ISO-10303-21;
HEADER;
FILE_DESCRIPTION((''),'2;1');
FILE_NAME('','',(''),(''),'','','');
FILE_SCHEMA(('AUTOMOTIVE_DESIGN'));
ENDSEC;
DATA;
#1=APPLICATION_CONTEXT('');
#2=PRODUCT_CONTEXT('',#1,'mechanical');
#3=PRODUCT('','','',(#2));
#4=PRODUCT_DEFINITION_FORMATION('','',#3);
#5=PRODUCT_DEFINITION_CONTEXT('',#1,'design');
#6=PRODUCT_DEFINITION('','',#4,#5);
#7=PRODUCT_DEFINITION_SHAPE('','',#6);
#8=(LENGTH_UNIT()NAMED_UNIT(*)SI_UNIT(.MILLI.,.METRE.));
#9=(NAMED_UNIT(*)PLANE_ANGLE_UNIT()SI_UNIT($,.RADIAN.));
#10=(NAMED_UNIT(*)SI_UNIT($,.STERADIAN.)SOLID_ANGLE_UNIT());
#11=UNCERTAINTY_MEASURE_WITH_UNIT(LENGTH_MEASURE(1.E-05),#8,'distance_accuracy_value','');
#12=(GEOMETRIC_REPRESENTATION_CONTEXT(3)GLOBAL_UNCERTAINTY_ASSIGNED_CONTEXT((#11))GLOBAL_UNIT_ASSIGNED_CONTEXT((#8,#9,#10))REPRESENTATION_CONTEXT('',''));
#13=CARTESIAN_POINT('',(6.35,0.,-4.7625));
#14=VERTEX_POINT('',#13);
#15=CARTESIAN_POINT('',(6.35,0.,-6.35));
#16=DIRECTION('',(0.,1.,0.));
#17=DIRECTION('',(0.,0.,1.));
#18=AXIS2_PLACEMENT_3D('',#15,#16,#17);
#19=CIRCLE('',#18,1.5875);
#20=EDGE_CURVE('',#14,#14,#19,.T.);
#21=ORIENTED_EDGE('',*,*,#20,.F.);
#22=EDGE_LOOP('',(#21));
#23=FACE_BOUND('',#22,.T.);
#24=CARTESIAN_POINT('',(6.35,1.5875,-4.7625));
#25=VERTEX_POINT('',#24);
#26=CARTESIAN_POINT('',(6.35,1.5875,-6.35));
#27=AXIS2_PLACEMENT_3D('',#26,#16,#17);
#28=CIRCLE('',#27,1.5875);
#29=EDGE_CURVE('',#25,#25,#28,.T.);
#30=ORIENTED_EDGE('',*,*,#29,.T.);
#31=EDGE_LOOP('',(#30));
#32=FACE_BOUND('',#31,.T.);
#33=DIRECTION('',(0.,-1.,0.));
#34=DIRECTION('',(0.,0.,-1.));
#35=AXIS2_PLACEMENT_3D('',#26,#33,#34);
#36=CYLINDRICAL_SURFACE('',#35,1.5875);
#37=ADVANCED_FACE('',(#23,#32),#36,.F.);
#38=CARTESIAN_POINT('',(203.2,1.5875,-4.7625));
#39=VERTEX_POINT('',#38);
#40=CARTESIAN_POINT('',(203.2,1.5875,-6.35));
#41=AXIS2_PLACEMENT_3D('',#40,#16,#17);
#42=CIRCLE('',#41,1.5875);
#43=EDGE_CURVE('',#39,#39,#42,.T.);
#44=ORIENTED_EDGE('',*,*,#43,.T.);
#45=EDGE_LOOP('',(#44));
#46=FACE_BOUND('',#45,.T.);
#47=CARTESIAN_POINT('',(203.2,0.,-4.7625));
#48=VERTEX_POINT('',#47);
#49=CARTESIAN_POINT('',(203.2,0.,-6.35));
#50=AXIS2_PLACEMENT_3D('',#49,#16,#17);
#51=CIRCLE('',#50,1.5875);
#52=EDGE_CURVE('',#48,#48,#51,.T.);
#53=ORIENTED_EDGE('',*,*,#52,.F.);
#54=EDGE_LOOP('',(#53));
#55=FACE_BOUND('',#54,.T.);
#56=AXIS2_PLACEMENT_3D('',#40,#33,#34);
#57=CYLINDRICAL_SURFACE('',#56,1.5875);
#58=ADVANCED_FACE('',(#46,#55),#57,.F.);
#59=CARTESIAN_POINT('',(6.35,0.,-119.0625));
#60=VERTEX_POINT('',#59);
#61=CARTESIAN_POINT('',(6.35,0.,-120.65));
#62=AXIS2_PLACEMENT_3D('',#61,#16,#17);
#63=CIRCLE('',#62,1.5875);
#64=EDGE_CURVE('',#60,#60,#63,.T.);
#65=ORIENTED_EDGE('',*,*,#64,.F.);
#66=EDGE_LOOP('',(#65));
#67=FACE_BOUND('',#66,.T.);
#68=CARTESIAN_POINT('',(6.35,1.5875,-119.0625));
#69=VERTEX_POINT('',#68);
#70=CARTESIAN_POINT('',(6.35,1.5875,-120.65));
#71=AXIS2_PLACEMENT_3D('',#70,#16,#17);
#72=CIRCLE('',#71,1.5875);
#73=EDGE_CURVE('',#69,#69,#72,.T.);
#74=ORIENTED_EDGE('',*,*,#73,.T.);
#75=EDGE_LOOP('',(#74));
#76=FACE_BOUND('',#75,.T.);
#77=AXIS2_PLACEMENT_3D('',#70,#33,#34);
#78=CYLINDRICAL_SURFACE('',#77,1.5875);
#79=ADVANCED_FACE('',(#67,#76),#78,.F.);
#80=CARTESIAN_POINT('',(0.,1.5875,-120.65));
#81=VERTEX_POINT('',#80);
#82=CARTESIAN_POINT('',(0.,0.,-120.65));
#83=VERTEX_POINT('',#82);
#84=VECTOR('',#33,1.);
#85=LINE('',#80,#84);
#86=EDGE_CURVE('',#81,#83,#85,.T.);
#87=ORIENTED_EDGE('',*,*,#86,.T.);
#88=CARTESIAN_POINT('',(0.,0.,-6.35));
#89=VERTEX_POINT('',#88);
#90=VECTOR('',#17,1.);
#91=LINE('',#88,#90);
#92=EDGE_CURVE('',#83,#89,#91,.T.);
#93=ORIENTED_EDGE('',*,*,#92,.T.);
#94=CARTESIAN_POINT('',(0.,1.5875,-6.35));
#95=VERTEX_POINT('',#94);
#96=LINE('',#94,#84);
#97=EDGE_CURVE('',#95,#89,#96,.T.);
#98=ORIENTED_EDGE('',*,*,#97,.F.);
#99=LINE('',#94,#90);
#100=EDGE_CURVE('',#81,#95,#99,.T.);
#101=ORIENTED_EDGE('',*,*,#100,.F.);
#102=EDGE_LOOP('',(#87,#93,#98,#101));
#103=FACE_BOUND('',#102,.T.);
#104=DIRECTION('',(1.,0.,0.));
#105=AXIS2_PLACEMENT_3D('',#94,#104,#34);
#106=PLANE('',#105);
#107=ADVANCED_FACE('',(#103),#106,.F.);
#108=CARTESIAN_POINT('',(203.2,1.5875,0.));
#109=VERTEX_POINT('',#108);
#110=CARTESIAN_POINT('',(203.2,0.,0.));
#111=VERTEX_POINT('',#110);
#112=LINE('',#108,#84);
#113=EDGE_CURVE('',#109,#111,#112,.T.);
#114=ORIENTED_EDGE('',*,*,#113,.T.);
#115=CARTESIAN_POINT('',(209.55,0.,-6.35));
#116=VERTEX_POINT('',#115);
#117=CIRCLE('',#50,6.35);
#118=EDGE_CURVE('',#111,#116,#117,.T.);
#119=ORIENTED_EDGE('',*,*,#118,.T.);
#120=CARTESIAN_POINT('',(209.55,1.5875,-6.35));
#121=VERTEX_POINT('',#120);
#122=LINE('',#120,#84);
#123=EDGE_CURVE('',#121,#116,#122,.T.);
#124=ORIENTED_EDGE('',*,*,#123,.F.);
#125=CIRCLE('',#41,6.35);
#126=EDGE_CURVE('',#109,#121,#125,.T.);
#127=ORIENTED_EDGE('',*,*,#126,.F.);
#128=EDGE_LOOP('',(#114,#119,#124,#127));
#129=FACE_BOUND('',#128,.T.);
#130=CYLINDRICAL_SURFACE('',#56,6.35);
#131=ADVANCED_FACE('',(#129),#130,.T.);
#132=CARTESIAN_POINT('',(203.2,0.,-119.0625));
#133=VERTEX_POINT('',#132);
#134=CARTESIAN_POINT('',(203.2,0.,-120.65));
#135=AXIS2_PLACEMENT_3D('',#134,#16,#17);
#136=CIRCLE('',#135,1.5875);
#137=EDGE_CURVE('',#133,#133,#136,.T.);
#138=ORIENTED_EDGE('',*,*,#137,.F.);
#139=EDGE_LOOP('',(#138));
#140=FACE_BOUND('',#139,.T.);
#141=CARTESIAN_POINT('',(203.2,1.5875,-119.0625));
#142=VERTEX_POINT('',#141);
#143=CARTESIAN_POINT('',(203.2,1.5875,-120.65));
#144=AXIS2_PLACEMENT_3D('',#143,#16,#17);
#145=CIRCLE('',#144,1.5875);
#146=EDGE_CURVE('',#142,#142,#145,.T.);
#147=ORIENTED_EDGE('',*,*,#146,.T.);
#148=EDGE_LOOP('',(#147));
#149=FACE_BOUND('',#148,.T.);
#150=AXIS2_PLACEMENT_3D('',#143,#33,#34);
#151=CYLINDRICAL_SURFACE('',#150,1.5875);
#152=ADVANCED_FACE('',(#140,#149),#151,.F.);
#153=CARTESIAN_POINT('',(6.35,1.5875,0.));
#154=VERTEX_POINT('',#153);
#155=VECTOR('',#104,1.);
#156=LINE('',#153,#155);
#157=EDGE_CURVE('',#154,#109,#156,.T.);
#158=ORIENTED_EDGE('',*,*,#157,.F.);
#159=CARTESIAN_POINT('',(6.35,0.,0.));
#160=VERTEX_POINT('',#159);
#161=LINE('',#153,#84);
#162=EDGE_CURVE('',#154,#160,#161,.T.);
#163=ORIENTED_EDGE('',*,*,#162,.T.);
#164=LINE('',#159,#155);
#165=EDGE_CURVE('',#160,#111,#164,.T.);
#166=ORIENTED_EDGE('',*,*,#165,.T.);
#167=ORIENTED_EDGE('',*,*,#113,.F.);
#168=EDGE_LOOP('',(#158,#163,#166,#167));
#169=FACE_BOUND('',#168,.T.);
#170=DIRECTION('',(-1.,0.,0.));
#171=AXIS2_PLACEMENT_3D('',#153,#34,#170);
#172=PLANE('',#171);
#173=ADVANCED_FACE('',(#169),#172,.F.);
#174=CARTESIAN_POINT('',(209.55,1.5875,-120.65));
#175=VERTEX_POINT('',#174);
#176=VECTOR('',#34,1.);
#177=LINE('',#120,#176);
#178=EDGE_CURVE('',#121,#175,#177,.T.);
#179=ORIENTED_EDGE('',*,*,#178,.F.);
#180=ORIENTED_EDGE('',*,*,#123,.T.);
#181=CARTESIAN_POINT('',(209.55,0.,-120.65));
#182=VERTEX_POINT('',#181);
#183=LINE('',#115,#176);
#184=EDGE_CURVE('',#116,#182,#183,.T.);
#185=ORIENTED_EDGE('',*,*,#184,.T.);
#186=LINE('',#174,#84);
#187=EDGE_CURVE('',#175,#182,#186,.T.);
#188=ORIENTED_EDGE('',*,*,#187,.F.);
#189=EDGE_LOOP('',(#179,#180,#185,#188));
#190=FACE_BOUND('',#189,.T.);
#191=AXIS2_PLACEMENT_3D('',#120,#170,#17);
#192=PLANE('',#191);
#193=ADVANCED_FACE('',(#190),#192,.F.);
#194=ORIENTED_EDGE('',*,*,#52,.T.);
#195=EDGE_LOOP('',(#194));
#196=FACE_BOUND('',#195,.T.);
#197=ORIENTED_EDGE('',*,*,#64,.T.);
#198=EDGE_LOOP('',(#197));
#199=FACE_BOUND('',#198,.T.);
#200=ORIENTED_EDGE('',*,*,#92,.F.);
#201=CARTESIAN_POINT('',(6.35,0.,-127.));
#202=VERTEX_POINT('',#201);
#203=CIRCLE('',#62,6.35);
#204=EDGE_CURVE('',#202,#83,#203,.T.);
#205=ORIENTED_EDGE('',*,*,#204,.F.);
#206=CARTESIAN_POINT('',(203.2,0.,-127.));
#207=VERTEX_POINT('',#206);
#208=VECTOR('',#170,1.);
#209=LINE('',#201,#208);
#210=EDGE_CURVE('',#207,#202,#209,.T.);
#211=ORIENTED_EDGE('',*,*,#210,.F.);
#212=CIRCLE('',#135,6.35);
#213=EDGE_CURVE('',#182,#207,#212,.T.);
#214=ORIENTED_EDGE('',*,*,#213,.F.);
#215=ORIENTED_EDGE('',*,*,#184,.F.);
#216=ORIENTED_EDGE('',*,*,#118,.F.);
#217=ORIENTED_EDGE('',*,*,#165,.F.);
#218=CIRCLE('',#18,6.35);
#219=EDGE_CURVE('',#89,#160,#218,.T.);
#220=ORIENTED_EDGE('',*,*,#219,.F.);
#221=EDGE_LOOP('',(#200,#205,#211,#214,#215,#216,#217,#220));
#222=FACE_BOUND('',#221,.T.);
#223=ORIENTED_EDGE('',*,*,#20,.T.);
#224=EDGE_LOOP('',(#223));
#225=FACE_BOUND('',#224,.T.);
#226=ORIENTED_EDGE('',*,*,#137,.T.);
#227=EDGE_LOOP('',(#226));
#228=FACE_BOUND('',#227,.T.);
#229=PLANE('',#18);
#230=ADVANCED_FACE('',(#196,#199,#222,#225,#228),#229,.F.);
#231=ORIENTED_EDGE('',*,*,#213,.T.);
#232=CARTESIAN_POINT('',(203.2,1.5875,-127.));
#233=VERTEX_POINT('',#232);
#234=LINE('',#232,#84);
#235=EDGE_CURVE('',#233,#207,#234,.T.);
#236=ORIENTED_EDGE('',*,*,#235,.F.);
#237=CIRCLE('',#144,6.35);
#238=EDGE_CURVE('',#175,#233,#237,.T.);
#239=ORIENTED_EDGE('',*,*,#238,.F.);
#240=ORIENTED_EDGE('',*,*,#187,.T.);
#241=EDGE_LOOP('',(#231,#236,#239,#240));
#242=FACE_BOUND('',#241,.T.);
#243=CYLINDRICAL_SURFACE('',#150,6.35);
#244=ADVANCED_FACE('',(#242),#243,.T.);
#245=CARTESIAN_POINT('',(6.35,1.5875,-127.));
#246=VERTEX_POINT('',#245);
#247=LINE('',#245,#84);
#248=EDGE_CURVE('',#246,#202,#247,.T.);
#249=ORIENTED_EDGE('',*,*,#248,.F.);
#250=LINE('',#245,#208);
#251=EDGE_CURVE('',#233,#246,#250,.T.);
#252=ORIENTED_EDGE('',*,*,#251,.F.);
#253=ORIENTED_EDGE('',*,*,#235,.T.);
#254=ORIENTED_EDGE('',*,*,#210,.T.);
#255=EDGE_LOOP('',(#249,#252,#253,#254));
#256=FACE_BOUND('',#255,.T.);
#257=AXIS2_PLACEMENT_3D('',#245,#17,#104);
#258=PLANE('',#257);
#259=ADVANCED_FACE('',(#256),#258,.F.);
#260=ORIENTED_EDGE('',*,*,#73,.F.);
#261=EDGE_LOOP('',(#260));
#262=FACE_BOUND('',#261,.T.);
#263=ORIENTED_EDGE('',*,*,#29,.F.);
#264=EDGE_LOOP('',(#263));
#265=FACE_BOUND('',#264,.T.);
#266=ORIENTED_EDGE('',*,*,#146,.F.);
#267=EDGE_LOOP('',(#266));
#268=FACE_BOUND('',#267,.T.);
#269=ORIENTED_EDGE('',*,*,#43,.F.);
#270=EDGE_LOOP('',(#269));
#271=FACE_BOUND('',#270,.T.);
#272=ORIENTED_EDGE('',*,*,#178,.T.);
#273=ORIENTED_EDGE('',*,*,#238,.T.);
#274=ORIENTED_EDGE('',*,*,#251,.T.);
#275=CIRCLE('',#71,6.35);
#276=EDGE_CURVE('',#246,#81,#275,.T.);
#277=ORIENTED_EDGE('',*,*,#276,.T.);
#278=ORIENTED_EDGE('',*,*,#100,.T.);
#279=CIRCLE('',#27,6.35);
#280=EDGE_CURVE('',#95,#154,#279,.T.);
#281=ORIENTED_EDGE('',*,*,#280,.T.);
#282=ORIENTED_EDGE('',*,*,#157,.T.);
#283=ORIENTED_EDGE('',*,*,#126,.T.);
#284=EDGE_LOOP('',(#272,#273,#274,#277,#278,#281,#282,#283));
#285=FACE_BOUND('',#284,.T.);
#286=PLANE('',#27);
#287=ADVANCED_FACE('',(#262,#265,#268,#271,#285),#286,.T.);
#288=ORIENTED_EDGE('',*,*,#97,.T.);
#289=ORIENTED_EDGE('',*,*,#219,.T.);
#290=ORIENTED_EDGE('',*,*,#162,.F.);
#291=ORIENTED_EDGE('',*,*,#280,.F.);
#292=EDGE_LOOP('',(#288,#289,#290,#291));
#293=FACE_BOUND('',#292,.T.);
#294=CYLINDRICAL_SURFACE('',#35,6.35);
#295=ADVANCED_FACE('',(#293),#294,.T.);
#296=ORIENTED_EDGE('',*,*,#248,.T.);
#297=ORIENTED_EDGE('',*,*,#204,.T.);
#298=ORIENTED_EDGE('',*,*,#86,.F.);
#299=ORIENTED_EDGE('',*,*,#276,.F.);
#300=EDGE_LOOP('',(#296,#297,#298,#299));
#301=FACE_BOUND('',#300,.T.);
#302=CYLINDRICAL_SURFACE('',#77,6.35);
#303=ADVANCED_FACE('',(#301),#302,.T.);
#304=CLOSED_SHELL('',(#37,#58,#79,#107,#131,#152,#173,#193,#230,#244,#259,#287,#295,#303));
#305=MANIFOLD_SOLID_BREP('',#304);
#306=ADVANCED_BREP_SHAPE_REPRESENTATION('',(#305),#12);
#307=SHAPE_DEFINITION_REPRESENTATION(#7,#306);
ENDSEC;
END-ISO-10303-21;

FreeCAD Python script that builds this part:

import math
import FreeCAD as App
import Part
import Sketcher
Q = App.Units.Quantity

doc = App.newDocument("Part")
params = doc.addObject("Spreadsheet::Sheet", "Params")
for row, (alias, value) in enumerate([
    ("sketch1_radius", "0.25 in"),
    ("sketch1_diameter", "0.125 in"),
    ("sketch1_height", "4.5 in"),
    ("pad1_length", "0.0625 in"),
], start=1):
    params.set(f"A{row}", alias)
    params.set(f"B{row}", "=" + value)
    params.setAlias(f"B{row}", alias)

body = doc.addObject("PartDesign::Body", "Body")

sketch1 = doc.addObject("Sketcher::SketchObject", "Sketch")
body.addObject(sketch1)
sketch1.AttachmentSupport = (doc.XZ_Plane, [""])
sketch1.MapMode = "FlatFace"
sketch1.addGeometry(Part.LineSegment(App.Vector(6.35, 0, 0), App.Vector(203.2, 0, 0)), False)
sketch1.addGeometry(Part.ArcOfCircle(Part.Circle(App.Vector(203.2, -6.35, 0), App.Vector(0, 0, 1), 6.35), math.radians(0), math.radians(90)), False)
sketch1.addGeometry(Part.LineSegment(App.Vector(209.55, -6.35, 0), App.Vector(209.55, -120.65, 0)), False)
sketch1.addGeometry(Part.ArcOfCircle(Part.Circle(App.Vector(203.2, -120.65, 0), App.Vector(0, 0, 1), 6.35), math.radians(-90), math.radians(0)), False)
sketch1.addGeometry(Part.LineSegment(App.Vector(203.2, -127, 0), App.Vector(6.35, -127, 0)), False)
sketch1.addGeometry(Part.ArcOfCircle(Part.Circle(App.Vector(6.35, -120.65, 0), App.Vector(0, 0, 1), 6.35), math.radians(180), math.radians(270)), False)
sketch1.addGeometry(Part.LineSegment(App.Vector(0, -120.65, 0), App.Vector(0, -6.35, 0)), False)
sketch1.addGeometry(Part.ArcOfCircle(Part.Circle(App.Vector(6.35, -6.35, 0), App.Vector(0, 0, 1), 6.35), math.radians(90), math.radians(180)), False)
sketch1.addGeometry(Part.Circle(App.Vector(6.35, -6.35, 0), App.Vector(0, 0, 1), 1.5875), False)
sketch1.addGeometry(Part.Circle(App.Vector(203.2, -6.35, 0), App.Vector(0, 0, 1), 1.5875), False)
sketch1.addGeometry(Part.Circle(App.Vector(6.35, -120.65, 0), App.Vector(0, 0, 1), 1.5875), False)
sketch1.addGeometry(Part.Circle(App.Vector(203.2, -120.65, 0), App.Vector(0, 0, 1), 1.5875), False)
sketch1.addConstraint(Sketcher.Constraint("Tangent", 0, 2, 1, 2))
sketch1.addConstraint(Sketcher.Constraint("Tangent", 1, 1, 2, 1))
sketch1.addConstraint(Sketcher.Constraint("Tangent", 2, 2, 3, 2))
sketch1.addConstraint(Sketcher.Constraint("Tangent", 3, 1, 4, 1))
sketch1.addConstraint(Sketcher.Constraint("Tangent", 4, 2, 5, 2))
sketch1.addConstraint(Sketcher.Constraint("Tangent", 5, 1, 6, 1))
sketch1.addConstraint(Sketcher.Constraint("Tangent", 6, 2, 7, 2))
sketch1.addConstraint(Sketcher.Constraint("Tangent", 7, 1, 0, 1))
sketch1.addConstraint(Sketcher.Constraint("Horizontal", 0))
sketch1.addConstraint(Sketcher.Constraint("Vertical", 2))
sketch1.addConstraint(Sketcher.Constraint("Horizontal", 4))
sketch1.addConstraint(Sketcher.Constraint("Vertical", 6))
sketch1.addConstraint(Sketcher.Constraint("Coincident", 8, 3, 7, 3))
sketch1.addConstraint(Sketcher.Constraint("Coincident", 9, 3, 1, 3))
sketch1.addConstraint(Sketcher.Constraint("Coincident", 10, 3, 5, 3))
sketch1.addConstraint(Sketcher.Constraint("Coincident", 11, 3, 3, 3))
sketch1.addConstraint(Sketcher.Constraint("Equal", 1, 3))
sketch1.addConstraint(Sketcher.Constraint("Equal", 3, 5))
sketch1.addConstraint(Sketcher.Constraint("Equal", 5, 7))
sketch1.addConstraint(Sketcher.Constraint("Equal", 8, 9))
sketch1.addConstraint(Sketcher.Constraint("Equal", 9, 10))
sketch1.addConstraint(Sketcher.Constraint("Equal", 10, 11))
sketch1.addConstraint(Sketcher.Constraint("PointOnObject", 0, 2, -1))
sketch1.addConstraint(Sketcher.Constraint("PointOnObject", 5, 1, -2))
sketch1.addConstraint(Sketcher.Constraint("Radius", 1, Q("0.25 in")))
sketch1.addConstraint(Sketcher.Constraint("Diameter", 8, Q("0.125 in")))
sketch1.addConstraint(Sketcher.Constraint("DistanceY", 2, 2, 2, 1, Q("4.5 in")))
sketch1.addConstraint(Sketcher.Constraint("DistanceX", -1, 1, 1, 3, Q("8 in")))
sketch1.setExpression("Constraints[24]", "Params.sketch1_radius")
sketch1.setExpression("Constraints[25]", "Params.sketch1_diameter")
sketch1.setExpression("Constraints[26]", "Params.sketch1_height")
pad1 = doc.addObject("PartDesign::Pad", "Pad")
body.addObject(pad1)
pad1.Profile = sketch1
pad1.setExpression("Length", "Params.pad1_length")
pad1.Reversed = True

doc.recompute()
